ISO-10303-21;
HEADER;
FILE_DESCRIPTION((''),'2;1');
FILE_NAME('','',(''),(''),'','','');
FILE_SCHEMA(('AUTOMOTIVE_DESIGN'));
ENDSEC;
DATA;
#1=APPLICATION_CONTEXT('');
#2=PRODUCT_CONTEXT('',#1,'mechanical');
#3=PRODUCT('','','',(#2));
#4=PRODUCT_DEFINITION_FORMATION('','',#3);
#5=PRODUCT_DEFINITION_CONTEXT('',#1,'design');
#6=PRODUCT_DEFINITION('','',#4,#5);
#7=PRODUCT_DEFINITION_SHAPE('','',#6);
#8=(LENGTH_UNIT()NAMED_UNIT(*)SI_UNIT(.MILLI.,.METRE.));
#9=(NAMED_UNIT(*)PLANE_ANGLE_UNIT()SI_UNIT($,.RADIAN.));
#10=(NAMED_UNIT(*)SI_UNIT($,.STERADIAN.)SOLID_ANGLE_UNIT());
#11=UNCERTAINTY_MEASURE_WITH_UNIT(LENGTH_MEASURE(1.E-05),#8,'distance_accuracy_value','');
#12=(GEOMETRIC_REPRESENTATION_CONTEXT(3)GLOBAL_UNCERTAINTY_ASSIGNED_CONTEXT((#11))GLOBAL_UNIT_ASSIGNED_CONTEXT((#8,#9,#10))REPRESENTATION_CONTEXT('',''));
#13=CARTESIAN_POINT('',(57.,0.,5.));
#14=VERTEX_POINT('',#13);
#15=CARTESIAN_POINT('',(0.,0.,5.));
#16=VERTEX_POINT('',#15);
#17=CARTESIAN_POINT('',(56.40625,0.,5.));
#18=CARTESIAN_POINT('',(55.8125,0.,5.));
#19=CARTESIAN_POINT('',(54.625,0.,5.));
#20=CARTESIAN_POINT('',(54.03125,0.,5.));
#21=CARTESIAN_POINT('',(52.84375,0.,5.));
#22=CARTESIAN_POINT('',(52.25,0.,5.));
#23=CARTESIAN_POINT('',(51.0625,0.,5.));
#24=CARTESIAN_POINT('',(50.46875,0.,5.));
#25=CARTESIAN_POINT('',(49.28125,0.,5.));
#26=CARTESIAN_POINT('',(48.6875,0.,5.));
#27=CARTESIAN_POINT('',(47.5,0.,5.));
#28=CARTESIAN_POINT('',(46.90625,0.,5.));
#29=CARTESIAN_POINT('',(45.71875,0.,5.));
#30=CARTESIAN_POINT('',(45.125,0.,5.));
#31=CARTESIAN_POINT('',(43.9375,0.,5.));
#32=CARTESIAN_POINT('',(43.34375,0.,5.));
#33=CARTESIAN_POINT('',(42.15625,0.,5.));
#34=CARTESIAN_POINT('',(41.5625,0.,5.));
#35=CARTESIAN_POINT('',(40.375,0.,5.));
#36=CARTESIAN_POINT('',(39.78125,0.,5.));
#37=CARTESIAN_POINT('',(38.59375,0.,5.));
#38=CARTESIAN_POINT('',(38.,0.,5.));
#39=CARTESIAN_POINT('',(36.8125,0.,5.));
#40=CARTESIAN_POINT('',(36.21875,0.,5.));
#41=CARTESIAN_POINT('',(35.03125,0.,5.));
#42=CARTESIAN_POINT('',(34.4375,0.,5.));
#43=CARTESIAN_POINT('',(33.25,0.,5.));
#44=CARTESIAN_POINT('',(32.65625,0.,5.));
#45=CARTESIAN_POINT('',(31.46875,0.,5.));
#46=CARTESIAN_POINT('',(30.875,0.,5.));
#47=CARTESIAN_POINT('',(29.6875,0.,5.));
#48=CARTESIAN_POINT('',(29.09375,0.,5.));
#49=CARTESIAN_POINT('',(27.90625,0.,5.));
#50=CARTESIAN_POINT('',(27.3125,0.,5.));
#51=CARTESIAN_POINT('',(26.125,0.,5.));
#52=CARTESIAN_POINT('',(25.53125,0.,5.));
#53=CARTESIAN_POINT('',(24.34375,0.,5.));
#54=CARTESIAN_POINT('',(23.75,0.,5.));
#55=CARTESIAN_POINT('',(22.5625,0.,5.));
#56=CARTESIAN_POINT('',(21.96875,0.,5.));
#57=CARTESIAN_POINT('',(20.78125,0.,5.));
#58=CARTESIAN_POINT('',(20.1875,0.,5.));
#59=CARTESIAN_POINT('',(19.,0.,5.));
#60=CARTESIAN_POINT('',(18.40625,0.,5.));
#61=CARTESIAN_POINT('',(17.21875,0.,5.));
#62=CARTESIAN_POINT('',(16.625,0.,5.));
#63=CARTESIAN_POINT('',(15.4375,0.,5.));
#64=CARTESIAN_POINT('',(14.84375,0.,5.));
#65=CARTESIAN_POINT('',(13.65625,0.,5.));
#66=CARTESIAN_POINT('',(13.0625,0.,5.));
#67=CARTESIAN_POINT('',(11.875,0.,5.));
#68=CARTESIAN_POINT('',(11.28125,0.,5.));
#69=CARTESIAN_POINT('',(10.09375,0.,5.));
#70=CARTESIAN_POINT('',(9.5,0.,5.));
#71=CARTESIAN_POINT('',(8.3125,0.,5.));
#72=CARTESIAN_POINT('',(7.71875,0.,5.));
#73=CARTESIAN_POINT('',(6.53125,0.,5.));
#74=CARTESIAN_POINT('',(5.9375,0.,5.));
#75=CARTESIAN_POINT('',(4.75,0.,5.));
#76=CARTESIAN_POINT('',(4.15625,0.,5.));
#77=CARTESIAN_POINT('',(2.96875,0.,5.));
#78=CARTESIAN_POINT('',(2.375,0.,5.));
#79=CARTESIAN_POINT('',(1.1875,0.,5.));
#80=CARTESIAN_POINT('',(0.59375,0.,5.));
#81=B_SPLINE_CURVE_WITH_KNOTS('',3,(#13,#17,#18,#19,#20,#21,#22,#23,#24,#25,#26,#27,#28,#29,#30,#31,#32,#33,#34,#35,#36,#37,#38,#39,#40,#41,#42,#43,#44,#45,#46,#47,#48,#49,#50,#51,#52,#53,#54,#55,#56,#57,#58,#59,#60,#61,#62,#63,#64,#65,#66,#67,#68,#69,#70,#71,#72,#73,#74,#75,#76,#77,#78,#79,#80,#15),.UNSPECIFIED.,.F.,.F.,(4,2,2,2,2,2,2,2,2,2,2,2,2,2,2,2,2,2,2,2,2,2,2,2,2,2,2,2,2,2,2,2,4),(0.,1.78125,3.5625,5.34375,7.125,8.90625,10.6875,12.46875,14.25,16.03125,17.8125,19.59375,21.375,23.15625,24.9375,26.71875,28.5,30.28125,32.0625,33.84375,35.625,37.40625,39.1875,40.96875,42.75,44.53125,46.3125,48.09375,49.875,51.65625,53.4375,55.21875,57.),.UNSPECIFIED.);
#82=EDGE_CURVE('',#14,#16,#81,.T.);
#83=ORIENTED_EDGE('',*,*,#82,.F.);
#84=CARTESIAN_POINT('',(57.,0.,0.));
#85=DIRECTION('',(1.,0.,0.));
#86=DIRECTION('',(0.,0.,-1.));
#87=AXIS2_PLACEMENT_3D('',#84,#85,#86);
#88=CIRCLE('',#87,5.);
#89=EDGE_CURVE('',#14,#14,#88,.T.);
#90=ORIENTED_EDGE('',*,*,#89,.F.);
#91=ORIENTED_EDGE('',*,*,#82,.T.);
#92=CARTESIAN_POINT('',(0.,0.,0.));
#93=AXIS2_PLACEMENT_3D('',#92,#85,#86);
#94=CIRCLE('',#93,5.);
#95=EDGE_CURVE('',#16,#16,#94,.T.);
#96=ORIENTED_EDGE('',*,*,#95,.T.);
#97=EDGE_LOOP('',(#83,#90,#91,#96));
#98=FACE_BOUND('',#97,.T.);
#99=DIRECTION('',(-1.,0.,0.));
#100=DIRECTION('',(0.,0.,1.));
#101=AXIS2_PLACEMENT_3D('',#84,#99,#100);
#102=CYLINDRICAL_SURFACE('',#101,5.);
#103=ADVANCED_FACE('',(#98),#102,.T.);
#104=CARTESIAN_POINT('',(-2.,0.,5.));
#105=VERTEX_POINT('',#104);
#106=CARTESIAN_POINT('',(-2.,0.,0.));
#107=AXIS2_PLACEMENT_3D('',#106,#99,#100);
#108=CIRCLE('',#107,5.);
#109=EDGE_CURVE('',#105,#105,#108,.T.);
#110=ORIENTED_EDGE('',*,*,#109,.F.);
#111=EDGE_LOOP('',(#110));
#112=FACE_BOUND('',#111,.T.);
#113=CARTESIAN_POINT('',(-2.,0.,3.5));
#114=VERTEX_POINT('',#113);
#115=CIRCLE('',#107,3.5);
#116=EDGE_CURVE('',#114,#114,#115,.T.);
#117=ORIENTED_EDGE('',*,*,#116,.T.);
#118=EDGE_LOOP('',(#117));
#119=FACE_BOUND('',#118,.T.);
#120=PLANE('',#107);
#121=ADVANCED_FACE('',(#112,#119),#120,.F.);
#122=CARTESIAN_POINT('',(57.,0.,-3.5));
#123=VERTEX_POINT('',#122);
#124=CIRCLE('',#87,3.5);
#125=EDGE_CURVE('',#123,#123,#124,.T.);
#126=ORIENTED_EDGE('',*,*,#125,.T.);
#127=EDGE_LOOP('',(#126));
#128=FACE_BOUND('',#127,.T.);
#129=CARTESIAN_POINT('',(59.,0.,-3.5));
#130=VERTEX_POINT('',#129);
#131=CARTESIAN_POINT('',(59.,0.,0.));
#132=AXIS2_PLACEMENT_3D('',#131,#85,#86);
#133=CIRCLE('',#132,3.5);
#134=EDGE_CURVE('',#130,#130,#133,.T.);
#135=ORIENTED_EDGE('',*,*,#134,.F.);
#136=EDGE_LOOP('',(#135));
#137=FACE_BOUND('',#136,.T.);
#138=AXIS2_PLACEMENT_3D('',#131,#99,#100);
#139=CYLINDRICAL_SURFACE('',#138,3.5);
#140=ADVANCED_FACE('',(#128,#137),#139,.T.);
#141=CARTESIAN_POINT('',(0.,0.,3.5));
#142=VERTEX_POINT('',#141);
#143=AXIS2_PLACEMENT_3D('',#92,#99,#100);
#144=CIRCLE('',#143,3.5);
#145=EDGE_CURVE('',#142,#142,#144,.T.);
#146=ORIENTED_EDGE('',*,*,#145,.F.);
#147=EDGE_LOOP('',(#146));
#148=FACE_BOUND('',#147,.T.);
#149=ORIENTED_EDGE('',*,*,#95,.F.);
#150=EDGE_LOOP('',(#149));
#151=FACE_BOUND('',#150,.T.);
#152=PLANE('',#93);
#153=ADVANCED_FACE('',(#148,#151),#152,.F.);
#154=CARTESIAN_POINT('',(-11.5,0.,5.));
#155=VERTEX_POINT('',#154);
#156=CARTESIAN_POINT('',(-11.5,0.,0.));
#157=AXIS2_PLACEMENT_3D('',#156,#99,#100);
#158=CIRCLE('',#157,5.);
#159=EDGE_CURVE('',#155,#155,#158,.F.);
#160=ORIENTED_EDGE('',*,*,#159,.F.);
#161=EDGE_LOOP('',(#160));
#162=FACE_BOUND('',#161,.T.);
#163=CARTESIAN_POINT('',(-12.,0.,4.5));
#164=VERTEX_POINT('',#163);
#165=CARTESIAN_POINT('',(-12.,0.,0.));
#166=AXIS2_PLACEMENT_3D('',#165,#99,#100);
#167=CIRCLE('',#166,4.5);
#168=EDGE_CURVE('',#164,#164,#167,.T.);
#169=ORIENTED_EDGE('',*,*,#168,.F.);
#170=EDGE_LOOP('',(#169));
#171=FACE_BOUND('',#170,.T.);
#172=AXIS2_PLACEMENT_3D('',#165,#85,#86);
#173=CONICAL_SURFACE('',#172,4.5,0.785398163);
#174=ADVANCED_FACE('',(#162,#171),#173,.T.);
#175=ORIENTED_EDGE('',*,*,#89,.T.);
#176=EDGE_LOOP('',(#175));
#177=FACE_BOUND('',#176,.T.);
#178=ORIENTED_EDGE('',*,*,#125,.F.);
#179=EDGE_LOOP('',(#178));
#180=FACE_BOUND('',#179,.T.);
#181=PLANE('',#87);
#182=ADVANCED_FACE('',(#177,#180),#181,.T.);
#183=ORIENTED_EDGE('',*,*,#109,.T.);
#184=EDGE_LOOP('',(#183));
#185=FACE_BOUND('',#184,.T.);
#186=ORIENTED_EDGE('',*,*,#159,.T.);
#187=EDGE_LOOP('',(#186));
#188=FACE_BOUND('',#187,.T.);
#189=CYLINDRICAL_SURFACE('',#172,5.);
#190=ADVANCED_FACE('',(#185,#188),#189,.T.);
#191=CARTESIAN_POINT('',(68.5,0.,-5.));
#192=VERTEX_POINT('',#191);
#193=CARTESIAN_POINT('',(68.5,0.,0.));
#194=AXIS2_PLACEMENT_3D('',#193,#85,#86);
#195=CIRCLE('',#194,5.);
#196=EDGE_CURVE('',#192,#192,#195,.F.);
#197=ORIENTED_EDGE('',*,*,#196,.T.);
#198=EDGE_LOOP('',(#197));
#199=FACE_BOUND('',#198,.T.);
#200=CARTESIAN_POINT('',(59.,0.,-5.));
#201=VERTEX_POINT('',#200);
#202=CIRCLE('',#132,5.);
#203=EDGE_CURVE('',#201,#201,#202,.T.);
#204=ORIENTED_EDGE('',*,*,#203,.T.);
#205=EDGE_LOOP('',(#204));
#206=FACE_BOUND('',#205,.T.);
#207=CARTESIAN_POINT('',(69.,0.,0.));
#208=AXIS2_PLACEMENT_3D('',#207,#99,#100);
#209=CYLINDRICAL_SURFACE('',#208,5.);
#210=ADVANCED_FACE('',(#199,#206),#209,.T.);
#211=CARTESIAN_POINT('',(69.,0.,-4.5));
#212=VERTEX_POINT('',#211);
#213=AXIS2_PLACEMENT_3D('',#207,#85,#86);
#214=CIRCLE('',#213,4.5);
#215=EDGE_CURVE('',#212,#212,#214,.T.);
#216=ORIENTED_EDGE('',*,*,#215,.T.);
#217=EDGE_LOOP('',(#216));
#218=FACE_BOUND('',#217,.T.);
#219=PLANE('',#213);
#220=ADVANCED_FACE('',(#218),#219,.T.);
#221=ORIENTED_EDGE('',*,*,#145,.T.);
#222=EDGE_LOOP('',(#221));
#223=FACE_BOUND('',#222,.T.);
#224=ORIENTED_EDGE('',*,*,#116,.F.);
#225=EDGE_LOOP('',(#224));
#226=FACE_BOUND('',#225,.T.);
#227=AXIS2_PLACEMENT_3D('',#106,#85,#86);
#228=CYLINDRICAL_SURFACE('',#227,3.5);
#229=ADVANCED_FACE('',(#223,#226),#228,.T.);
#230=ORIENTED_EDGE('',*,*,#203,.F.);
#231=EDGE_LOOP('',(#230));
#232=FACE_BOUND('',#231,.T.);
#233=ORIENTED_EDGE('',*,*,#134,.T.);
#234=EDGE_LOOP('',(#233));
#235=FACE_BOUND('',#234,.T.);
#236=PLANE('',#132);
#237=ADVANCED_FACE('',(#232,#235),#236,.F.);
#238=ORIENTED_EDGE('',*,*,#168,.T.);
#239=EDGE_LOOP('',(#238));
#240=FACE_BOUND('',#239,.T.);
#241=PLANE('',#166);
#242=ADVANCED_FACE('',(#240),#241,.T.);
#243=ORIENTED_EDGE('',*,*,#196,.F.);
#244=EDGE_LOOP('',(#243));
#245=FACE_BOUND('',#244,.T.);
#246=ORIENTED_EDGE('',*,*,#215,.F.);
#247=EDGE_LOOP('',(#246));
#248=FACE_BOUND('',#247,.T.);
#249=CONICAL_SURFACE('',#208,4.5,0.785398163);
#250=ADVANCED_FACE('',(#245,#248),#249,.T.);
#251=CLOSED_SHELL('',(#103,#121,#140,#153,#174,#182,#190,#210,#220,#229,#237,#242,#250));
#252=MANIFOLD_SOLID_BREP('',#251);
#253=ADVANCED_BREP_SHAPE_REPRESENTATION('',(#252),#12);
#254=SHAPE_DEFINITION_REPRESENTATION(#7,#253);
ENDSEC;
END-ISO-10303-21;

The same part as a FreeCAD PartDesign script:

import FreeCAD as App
import Part
import Sketcher

V = App.Vector


def edges_at(feature, points):
    """Names of the edges that pass closest to the given points."""
    edges = feature.Shape.Edges
    near = lambda p: min(range(len(edges)), key=lambda i: edges[i].distToShape(Part.Vertex(*p))[0])
    return sorted({f"Edge{near(p) + 1}" for p in points})

doc = App.newDocument("Part")
body = doc.addObject("PartDesign::Body", "Body")

# Sketch on YZ plane
sketch1 = doc.addObject("Sketcher::SketchObject", "Sketch")
body.addObject(sketch1)
sketch1.AttachmentSupport = (doc.YZ_Plane, [""])
sketch1.MapMode = "FlatFace"
sketch1.addGeometry(Part.Circle(V(0, 0, 0), V(0, 0, 1), 5), False)
sketch1.addConstraint([
    Sketcher.Constraint("Coincident", 0, 3, -1, 1),
    Sketcher.Constraint("Diameter", 0, 10.0),
])
pad1 = doc.addObject("PartDesign::Pad", "Pad")
body.addObject(pad1)
pad1.Profile = sketch1
pad1.Length = 57

# Sketch on YZ plane
sketch2 = doc.addObject("Sketcher::SketchObject", "Sketch001")
body.addObject(sketch2)
sketch2.AttachmentSupport = (doc.YZ_Plane, [""])
sketch2.MapMode = "FlatFace"
sketch2.addGeometry(Part.Circle(V(0, 0, 0), V(0, 0, 1), 3.5), False)
sketch2.addConstraint([
    Sketcher.Constraint("Coincident", 0, 3, -1, 1),
    Sketcher.Constraint("Diameter", 0, 7.0),
])
pad2 = doc.addObject("PartDesign::Pad", "Pad001")
body.addObject(pad2)
pad2.Profile = sketch2
pad2.Length = 2
pad2.Reversed = True

# Sketch on YZ plane
sketch3 = doc.addObject("Sketcher::SketchObject", "Sketch002")
body.addObject(sketch3)
sketch3.AttachmentSupport = (doc.YZ_Plane, [""])
sketch3.MapMode = "FlatFace"
sketch3.AttachmentOffset = App.Placement(V(0, 0, -12), App.Rotation())
sketch3.addGeometry(Part.Circle(V(0, 0, 0), V(0, 0, 1), 5), False)
sketch3.addConstraint([
    Sketcher.Constraint("Coincident", 0, 3, -1, 1),
    Sketcher.Constraint("Diameter", 0, 10.0),
])
pad3 = doc.addObject("PartDesign::Pad", "Pad002")
body.addObject(pad3)
pad3.Profile = sketch3
pad3.Length = 10

# Sketch on YZ plane
sketch4 = doc.addObject("Sketcher::SketchObject", "Sketch003")
body.addObject(sketch4)
sketch4.AttachmentSupport = (doc.YZ_Plane, [""])
sketch4.MapMode = "FlatFace"
sketch4.AttachmentOffset = App.Placement(V(0, 0, 59), App.Rotation())
sketch4.addGeometry(Part.Circle(V(0, 0, 0), V(0, 0, 1), 3.5), False)
sketch4.addConstraint([
    Sketcher.Constraint("Coincident", 0, 3, -1, 1),
    Sketcher.Constraint("Diameter", 0, 7.0),
])
pad4 = doc.addObject("PartDesign::Pad", "Pad003")
body.addObject(pad4)
pad4.Profile = sketch4
pad4.Length = 2
pad4.Reversed = True

# Sketch on YZ plane
sketch5 = doc.addObject("Sketcher::SketchObject", "Sketch004")
body.addObject(sketch5)
sketch5.AttachmentSupport = (doc.YZ_Plane, [""])
sketch5.MapMode = "FlatFace"
sketch5.AttachmentOffset = App.Placement(V(0, 0, 59), App.Rotation())
sketch5.addGeometry(Part.Circle(V(0, 0, 0), V(0, 0, 1), 5), False)
sketch5.addConstraint([
    Sketcher.Constraint("Coincident", 0, 3, -1, 1),
    Sketcher.Constraint("Diameter", 0, 10.0),
])
pad5 = doc.addObject("PartDesign::Pad", "Pad004")
body.addObject(pad5)
pad5.Profile = sketch5
pad5.Length = 10
doc.recompute()

chamfer = doc.addObject("PartDesign::Chamfer", "Chamfer")
body.addObject(chamfer)
chamfer.Base = (pad5, edges_at(pad5, [(-12, 0, -5), (69, 0, -5)]))
chamfer.Size = 0.5

doc.recompute()
